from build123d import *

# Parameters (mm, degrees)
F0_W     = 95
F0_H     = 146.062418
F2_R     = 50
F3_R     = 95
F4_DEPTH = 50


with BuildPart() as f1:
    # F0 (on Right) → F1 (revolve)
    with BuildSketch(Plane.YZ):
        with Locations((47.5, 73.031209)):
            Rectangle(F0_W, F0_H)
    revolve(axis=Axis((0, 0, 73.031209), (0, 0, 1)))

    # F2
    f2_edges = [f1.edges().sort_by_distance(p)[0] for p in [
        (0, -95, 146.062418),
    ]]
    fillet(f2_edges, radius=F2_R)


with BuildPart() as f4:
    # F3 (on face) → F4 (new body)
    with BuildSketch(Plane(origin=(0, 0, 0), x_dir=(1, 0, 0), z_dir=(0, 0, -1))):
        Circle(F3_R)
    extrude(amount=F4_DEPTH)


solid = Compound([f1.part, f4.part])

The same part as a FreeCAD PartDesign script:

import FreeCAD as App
import Part
import Sketcher
from FreeCAD import Vector
Q = App.Units.Quantity


def edges_at(feature, points):
    """Names of the edges that pass closest to the given points."""
    edges = feature.Shape.Edges
    near = lambda p: min(range(len(edges)), key=lambda i: edges[i].distToShape(Part.Vertex(*p))[0])
    return sorted({f"Edge{near(p) + 1}" for p in points})

doc = App.newDocument("Part")
body = doc.addObject("PartDesign::Body", "Body")

# Sketch on YZ plane
sketch1 = body.newObject("Sketcher::SketchObject", "Sketch")
sketch1.AttachmentSupport = (doc.getObject("YZ_Plane"), [""])
sketch1.MapMode = "FlatFace"
sketch1.addGeometry([
    Part.LineSegment(Vector(0, 146.062418, 0), Vector(0, 0, 0)),
    Part.LineSegment(Vector(0, 0, 0), Vector(95, 0, 0)),
    Part.LineSegment(Vector(95, 0, 0), Vector(95, 146.062418, 0)),
    Part.LineSegment(Vector(95, 146.062418, 0), Vector(0, 146.062418, 0)),
], False)
sketch1.addConstraint([
    Sketcher.Constraint("Coincident", 0, 2, 1, 1),
    Sketcher.Constraint("Coincident", 1, 2, 2, 1),
    Sketcher.Constraint("Coincident", 2, 2, 3, 1),
    Sketcher.Constraint("Coincident", 3, 2, 0, 1),
    Sketcher.Constraint("Vertical", 0),
    Sketcher.Constraint("Horizontal", 1),
    Sketcher.Constraint("Vertical", 2),
    Sketcher.Constraint("Horizontal", 3),
    Sketcher.Constraint("Coincident", 0, 2, -1, 1),
    Sketcher.Constraint("DistanceX", 1, 1, 1, 2, Q("95 mm")),
    Sketcher.Constraint("DistanceY", 0, 2, 0, 1, Q("146.062418 mm")),
])
revolution = body.newObject("PartDesign::Revolution", "Revolution")
revolution.Profile = sketch1
revolution.ReferenceAxis = (sketch1, ["V_Axis"])
revolution.Angle = 360
doc.recompute()

fillet = body.newObject("PartDesign::Fillet", "Fillet")
fillet.Base = (revolution, edges_at(revolution, [(0, -95, 146.062)]))
fillet.Radius = 50
body2 = doc.addObject("PartDesign::Body", "Body001")

# Sketch on XY plane
sketch2 = body2.newObject("Sketcher::SketchObject", "Sketch001")
sketch2.AttachmentSupport = (doc.getObject("XY_Plane001"), [""])
sketch2.MapMode = "FlatFace"
sketch2.addGeometry(Part.Circle(Vector(0, 0, 0), Vector(0, 0, 1), 95), False)
sketch2.addConstraint([
    Sketcher.Constraint("Coincident", 0, 3, -1, 1),
    Sketcher.Constraint("Diameter", 0, Q("190 mm")),
])
pad1 = body2.newObject("PartDesign::Pad", "Pad")
pad1.Profile = sketch2
pad1.Length = 50
pad1.Reversed = True

doc.recompute()
